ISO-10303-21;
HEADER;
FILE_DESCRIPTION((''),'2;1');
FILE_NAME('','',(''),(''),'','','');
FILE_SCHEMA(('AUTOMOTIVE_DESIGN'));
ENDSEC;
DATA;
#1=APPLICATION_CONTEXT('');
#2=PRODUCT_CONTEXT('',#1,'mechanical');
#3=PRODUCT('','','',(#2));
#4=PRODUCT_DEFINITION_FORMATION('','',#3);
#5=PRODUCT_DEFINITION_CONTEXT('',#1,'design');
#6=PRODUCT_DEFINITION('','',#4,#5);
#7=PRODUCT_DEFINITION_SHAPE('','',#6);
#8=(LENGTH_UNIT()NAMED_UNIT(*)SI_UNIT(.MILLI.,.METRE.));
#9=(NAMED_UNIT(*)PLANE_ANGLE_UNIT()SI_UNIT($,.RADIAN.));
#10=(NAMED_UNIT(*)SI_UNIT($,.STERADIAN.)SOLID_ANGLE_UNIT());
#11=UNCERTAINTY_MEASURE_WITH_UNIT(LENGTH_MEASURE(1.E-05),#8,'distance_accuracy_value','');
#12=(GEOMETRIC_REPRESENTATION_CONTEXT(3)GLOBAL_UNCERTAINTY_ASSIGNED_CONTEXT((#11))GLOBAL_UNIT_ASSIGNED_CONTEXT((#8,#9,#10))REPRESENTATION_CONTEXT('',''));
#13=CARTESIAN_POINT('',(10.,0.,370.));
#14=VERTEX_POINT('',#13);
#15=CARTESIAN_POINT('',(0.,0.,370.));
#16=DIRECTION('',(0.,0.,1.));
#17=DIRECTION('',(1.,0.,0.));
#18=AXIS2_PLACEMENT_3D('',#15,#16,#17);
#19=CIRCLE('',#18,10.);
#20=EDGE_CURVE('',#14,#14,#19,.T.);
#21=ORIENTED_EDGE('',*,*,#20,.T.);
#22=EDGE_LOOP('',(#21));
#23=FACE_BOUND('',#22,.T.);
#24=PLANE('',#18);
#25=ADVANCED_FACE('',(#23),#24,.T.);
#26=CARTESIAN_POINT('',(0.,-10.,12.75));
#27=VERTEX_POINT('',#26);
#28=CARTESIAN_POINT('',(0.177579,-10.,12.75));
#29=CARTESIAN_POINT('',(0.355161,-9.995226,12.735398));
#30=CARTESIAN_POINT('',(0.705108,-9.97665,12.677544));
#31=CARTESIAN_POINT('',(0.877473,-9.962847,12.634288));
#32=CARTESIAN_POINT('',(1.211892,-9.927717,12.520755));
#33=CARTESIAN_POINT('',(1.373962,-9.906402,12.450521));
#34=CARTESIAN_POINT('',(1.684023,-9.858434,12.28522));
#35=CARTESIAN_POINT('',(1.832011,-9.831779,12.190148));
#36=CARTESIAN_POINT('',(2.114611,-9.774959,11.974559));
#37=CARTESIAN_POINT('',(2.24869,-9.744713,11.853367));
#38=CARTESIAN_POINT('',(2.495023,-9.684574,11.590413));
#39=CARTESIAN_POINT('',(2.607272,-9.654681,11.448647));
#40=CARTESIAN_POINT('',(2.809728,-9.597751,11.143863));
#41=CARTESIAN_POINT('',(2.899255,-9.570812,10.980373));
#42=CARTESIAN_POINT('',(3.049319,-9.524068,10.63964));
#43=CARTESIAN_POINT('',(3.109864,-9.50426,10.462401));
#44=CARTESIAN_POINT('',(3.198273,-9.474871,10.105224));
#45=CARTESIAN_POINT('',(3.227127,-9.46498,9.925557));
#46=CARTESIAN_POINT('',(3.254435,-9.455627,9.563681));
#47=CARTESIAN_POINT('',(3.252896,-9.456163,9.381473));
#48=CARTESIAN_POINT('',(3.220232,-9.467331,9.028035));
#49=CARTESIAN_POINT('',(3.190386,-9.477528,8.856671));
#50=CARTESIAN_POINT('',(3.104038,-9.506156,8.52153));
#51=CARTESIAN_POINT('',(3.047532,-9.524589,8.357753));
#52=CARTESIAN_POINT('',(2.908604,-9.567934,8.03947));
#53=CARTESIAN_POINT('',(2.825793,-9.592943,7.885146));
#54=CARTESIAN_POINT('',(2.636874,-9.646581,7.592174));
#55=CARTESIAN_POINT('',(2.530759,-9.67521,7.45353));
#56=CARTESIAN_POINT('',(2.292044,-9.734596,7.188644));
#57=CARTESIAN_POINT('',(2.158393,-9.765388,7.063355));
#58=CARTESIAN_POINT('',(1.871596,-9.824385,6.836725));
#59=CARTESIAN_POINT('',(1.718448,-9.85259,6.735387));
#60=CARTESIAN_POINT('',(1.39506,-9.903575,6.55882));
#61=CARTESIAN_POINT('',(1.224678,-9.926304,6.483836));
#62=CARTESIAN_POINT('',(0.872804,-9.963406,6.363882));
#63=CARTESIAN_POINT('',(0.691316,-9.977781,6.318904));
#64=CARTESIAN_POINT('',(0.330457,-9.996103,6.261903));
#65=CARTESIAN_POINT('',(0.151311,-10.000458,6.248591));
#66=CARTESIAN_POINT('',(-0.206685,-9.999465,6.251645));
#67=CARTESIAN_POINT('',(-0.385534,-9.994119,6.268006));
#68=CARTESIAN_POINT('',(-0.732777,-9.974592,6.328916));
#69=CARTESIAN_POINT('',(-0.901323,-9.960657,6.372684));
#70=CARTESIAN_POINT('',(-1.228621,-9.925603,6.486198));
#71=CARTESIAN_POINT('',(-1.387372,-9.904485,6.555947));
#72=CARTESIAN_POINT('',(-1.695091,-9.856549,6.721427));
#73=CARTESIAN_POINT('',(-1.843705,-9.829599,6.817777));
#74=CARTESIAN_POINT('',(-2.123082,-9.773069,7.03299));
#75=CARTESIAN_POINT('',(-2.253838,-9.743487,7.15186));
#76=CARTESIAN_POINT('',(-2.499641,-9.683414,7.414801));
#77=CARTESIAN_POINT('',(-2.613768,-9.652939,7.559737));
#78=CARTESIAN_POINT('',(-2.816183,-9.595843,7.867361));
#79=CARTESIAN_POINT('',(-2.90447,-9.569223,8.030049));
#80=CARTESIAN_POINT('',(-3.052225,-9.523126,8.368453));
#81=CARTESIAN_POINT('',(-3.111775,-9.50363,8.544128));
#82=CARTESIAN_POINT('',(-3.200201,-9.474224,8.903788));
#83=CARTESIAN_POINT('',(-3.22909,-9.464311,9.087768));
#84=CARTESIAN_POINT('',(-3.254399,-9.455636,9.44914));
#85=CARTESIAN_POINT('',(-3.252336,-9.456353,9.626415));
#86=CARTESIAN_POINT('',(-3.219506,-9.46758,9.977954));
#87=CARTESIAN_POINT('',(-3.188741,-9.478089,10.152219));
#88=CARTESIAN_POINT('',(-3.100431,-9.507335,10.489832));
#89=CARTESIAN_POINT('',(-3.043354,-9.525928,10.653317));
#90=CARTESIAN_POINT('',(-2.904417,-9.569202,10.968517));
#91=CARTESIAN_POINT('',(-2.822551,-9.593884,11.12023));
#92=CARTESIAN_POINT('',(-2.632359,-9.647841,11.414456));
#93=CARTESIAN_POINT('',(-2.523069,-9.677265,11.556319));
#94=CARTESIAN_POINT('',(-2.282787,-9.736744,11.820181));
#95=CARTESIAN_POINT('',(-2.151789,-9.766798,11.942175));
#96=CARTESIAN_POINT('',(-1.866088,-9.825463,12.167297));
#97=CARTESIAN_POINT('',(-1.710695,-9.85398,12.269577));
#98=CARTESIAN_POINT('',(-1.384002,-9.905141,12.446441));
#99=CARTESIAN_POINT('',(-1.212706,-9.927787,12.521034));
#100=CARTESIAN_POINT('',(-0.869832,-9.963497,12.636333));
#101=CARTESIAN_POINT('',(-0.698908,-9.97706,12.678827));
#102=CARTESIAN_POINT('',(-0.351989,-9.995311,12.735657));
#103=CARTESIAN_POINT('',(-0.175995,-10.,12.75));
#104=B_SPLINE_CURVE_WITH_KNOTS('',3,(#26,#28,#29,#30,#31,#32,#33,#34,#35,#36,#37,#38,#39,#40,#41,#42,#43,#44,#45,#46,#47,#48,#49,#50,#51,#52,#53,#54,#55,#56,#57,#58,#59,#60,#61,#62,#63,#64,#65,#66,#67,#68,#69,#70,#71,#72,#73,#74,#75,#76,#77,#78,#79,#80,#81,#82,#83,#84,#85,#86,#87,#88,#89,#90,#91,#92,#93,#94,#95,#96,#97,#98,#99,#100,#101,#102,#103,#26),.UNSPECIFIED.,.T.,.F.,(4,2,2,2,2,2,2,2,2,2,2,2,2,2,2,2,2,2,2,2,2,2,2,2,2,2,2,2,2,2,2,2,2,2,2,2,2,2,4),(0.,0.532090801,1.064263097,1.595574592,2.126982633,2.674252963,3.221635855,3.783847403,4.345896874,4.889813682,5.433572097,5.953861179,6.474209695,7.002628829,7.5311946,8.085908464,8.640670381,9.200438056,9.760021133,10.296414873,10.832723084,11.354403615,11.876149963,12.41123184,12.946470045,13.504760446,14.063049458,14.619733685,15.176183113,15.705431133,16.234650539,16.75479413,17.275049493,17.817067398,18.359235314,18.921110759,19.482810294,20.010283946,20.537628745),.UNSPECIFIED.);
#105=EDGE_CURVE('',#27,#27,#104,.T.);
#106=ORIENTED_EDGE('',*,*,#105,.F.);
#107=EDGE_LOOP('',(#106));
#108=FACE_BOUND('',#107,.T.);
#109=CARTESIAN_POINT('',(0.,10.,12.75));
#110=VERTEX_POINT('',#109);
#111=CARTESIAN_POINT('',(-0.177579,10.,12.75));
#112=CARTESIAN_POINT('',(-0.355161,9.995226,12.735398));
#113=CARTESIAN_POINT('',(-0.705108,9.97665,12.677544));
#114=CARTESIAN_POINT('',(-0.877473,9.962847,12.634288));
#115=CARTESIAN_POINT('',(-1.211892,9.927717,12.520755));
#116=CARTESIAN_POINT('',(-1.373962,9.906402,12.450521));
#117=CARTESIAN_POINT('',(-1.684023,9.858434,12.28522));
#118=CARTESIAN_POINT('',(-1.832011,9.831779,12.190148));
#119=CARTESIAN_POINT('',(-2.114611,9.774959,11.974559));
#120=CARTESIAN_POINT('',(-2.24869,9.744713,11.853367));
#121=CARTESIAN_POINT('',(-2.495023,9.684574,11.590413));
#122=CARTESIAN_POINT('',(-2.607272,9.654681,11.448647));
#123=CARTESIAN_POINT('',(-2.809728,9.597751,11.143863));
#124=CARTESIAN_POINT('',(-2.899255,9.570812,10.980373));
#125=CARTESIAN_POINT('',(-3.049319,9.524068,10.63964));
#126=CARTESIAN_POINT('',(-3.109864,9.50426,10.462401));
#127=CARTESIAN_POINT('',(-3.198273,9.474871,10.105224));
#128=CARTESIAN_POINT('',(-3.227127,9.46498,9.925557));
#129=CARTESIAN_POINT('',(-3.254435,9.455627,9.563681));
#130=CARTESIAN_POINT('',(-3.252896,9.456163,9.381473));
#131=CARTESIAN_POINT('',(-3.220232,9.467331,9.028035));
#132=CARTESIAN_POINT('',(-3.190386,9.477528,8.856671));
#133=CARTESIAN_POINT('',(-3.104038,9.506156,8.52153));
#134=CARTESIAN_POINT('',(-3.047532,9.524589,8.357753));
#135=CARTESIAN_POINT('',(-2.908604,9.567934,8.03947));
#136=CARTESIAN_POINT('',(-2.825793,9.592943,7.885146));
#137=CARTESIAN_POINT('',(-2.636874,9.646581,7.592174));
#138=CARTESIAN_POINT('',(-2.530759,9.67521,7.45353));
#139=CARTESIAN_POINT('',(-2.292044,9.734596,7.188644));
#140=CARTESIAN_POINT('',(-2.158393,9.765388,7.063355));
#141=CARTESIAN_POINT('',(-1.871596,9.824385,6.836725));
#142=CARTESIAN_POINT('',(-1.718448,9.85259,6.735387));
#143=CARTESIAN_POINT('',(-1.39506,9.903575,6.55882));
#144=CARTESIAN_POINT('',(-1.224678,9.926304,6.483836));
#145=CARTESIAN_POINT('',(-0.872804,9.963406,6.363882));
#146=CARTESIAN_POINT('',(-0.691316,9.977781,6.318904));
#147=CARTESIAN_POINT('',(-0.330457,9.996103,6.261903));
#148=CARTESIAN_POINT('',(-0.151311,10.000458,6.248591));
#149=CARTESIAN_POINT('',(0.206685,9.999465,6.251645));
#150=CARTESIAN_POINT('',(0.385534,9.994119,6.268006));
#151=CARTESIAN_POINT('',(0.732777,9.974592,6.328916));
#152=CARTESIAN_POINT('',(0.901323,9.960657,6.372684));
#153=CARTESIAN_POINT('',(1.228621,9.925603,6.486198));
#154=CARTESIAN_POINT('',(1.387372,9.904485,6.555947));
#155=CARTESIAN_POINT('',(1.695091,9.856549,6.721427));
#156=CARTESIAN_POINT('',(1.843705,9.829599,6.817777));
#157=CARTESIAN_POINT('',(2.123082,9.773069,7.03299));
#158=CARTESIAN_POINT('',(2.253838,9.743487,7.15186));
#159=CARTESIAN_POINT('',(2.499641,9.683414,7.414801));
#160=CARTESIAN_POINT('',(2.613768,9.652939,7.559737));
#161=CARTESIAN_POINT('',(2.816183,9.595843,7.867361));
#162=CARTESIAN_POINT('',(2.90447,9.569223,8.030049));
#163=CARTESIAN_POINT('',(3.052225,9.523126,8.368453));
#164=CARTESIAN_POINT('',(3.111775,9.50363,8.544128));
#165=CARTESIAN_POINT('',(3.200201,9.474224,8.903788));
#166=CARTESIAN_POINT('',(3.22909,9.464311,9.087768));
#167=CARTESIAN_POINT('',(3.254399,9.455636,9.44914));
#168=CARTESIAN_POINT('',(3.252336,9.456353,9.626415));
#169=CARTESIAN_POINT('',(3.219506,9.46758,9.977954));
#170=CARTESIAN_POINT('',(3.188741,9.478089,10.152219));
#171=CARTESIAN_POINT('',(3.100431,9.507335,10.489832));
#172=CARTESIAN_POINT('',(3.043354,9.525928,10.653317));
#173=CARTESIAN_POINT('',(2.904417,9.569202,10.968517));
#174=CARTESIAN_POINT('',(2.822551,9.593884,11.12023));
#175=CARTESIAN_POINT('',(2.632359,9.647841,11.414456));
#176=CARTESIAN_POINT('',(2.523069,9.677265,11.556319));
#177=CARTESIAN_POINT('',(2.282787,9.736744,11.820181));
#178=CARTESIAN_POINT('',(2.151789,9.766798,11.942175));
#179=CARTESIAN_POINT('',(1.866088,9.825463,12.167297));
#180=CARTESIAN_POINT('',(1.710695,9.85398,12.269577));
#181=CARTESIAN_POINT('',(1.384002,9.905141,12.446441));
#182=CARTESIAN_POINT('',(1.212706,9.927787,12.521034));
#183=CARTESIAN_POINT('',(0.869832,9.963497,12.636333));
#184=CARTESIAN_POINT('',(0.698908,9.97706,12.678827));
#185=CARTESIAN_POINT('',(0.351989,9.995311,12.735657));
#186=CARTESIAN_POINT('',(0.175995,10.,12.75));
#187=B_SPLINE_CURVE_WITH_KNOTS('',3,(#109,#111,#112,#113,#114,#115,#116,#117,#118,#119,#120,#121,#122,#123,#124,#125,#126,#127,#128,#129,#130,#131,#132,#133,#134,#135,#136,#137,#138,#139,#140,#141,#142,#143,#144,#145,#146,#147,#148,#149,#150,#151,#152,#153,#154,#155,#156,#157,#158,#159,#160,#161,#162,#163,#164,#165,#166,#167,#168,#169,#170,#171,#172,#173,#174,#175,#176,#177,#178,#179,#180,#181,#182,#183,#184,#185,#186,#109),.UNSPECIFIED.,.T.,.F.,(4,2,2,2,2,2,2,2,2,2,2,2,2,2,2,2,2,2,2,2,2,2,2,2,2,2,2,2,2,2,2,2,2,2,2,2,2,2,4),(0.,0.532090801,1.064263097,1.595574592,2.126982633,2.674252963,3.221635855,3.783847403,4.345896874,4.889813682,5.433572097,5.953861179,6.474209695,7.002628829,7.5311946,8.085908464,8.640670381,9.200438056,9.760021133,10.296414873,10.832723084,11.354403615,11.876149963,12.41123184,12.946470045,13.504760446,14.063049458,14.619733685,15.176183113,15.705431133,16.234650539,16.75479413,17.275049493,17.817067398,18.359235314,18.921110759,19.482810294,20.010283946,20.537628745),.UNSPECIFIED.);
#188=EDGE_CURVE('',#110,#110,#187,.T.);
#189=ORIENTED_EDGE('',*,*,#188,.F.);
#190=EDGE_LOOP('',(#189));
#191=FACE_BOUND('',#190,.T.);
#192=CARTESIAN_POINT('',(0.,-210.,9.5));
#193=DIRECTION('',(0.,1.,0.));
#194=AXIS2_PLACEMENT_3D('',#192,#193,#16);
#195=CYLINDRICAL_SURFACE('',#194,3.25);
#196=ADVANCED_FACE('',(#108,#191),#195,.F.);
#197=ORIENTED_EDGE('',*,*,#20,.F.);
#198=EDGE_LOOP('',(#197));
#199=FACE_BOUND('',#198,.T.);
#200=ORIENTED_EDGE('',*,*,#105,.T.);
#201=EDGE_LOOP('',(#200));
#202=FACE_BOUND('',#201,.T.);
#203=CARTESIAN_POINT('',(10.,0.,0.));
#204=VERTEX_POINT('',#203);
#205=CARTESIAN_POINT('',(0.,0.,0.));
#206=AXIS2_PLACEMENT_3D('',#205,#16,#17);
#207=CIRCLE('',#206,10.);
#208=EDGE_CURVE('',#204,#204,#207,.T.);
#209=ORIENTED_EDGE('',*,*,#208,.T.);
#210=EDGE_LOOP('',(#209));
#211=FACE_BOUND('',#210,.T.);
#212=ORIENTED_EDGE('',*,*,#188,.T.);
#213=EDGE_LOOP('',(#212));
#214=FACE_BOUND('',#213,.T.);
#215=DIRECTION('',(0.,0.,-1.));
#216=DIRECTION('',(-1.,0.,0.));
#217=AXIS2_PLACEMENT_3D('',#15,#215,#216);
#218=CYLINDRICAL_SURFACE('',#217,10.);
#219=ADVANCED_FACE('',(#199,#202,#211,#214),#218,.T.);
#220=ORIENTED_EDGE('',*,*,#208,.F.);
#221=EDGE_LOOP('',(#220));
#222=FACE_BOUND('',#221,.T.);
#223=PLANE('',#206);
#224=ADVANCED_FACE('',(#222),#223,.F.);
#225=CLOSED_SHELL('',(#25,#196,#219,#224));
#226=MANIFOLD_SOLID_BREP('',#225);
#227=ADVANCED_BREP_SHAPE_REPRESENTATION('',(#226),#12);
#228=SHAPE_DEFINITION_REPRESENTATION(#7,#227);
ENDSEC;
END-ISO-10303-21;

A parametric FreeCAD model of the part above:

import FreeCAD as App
import Part
import Sketcher

V = App.Vector
Q = App.Units.Quantity

doc = App.newDocument("Part")
body = doc.addObject("PartDesign::Body", "Body")

# Sketch on XY plane
sketch1 = doc.addObject("Sketcher::SketchObject", "Sketch")
body.addObject(sketch1)
sketch1.AttachmentSupport = (doc.XY_Plane, [""])
sketch1.MapMode = "FlatFace"
sketch1.addGeometry(Part.Circle(V(0, 0, 0), V(0, 0, 1), 10), False)
sketch1.addConstraint([
    Sketcher.Constraint("Coincident", 0, 3, -1, 1),
    Sketcher.Constraint("Diameter", 0, Q("20 mm")),
])
pad1 = doc.addObject("PartDesign::Pad", "Pad")
body.addObject(pad1)
pad1.Profile = sketch1
pad1.Length = 370

# Sketch on XZ plane
sketch2 = doc.addObject("Sketcher::SketchObject", "Sketch001")
body.addObject(sketch2)
sketch2.AttachmentSupport = (doc.XZ_Plane, [""])
sketch2.MapMode = "FlatFace"
sketch2.addGeometry(Part.Circle(V(0, 9.5, 0), V(0, 0, 1), 3.2), False)
sketch2.addConstraint([
    Sketcher.Constraint("PointOnObject", 0, 3, -2),
    Sketcher.Constraint("Diameter", 0, Q("6.5 mm")),
    Sketcher.Constraint("DistanceY", -1, 1, 0, 3, Q("9.5 mm")),
])
pocket1 = doc.addObject("PartDesign::Pocket", "Pocket")
body.addObject(pocket1)
pocket1.Profile = sketch2
pocket1.Length = 420
pocket1.Midplane = True

doc.recompute()
